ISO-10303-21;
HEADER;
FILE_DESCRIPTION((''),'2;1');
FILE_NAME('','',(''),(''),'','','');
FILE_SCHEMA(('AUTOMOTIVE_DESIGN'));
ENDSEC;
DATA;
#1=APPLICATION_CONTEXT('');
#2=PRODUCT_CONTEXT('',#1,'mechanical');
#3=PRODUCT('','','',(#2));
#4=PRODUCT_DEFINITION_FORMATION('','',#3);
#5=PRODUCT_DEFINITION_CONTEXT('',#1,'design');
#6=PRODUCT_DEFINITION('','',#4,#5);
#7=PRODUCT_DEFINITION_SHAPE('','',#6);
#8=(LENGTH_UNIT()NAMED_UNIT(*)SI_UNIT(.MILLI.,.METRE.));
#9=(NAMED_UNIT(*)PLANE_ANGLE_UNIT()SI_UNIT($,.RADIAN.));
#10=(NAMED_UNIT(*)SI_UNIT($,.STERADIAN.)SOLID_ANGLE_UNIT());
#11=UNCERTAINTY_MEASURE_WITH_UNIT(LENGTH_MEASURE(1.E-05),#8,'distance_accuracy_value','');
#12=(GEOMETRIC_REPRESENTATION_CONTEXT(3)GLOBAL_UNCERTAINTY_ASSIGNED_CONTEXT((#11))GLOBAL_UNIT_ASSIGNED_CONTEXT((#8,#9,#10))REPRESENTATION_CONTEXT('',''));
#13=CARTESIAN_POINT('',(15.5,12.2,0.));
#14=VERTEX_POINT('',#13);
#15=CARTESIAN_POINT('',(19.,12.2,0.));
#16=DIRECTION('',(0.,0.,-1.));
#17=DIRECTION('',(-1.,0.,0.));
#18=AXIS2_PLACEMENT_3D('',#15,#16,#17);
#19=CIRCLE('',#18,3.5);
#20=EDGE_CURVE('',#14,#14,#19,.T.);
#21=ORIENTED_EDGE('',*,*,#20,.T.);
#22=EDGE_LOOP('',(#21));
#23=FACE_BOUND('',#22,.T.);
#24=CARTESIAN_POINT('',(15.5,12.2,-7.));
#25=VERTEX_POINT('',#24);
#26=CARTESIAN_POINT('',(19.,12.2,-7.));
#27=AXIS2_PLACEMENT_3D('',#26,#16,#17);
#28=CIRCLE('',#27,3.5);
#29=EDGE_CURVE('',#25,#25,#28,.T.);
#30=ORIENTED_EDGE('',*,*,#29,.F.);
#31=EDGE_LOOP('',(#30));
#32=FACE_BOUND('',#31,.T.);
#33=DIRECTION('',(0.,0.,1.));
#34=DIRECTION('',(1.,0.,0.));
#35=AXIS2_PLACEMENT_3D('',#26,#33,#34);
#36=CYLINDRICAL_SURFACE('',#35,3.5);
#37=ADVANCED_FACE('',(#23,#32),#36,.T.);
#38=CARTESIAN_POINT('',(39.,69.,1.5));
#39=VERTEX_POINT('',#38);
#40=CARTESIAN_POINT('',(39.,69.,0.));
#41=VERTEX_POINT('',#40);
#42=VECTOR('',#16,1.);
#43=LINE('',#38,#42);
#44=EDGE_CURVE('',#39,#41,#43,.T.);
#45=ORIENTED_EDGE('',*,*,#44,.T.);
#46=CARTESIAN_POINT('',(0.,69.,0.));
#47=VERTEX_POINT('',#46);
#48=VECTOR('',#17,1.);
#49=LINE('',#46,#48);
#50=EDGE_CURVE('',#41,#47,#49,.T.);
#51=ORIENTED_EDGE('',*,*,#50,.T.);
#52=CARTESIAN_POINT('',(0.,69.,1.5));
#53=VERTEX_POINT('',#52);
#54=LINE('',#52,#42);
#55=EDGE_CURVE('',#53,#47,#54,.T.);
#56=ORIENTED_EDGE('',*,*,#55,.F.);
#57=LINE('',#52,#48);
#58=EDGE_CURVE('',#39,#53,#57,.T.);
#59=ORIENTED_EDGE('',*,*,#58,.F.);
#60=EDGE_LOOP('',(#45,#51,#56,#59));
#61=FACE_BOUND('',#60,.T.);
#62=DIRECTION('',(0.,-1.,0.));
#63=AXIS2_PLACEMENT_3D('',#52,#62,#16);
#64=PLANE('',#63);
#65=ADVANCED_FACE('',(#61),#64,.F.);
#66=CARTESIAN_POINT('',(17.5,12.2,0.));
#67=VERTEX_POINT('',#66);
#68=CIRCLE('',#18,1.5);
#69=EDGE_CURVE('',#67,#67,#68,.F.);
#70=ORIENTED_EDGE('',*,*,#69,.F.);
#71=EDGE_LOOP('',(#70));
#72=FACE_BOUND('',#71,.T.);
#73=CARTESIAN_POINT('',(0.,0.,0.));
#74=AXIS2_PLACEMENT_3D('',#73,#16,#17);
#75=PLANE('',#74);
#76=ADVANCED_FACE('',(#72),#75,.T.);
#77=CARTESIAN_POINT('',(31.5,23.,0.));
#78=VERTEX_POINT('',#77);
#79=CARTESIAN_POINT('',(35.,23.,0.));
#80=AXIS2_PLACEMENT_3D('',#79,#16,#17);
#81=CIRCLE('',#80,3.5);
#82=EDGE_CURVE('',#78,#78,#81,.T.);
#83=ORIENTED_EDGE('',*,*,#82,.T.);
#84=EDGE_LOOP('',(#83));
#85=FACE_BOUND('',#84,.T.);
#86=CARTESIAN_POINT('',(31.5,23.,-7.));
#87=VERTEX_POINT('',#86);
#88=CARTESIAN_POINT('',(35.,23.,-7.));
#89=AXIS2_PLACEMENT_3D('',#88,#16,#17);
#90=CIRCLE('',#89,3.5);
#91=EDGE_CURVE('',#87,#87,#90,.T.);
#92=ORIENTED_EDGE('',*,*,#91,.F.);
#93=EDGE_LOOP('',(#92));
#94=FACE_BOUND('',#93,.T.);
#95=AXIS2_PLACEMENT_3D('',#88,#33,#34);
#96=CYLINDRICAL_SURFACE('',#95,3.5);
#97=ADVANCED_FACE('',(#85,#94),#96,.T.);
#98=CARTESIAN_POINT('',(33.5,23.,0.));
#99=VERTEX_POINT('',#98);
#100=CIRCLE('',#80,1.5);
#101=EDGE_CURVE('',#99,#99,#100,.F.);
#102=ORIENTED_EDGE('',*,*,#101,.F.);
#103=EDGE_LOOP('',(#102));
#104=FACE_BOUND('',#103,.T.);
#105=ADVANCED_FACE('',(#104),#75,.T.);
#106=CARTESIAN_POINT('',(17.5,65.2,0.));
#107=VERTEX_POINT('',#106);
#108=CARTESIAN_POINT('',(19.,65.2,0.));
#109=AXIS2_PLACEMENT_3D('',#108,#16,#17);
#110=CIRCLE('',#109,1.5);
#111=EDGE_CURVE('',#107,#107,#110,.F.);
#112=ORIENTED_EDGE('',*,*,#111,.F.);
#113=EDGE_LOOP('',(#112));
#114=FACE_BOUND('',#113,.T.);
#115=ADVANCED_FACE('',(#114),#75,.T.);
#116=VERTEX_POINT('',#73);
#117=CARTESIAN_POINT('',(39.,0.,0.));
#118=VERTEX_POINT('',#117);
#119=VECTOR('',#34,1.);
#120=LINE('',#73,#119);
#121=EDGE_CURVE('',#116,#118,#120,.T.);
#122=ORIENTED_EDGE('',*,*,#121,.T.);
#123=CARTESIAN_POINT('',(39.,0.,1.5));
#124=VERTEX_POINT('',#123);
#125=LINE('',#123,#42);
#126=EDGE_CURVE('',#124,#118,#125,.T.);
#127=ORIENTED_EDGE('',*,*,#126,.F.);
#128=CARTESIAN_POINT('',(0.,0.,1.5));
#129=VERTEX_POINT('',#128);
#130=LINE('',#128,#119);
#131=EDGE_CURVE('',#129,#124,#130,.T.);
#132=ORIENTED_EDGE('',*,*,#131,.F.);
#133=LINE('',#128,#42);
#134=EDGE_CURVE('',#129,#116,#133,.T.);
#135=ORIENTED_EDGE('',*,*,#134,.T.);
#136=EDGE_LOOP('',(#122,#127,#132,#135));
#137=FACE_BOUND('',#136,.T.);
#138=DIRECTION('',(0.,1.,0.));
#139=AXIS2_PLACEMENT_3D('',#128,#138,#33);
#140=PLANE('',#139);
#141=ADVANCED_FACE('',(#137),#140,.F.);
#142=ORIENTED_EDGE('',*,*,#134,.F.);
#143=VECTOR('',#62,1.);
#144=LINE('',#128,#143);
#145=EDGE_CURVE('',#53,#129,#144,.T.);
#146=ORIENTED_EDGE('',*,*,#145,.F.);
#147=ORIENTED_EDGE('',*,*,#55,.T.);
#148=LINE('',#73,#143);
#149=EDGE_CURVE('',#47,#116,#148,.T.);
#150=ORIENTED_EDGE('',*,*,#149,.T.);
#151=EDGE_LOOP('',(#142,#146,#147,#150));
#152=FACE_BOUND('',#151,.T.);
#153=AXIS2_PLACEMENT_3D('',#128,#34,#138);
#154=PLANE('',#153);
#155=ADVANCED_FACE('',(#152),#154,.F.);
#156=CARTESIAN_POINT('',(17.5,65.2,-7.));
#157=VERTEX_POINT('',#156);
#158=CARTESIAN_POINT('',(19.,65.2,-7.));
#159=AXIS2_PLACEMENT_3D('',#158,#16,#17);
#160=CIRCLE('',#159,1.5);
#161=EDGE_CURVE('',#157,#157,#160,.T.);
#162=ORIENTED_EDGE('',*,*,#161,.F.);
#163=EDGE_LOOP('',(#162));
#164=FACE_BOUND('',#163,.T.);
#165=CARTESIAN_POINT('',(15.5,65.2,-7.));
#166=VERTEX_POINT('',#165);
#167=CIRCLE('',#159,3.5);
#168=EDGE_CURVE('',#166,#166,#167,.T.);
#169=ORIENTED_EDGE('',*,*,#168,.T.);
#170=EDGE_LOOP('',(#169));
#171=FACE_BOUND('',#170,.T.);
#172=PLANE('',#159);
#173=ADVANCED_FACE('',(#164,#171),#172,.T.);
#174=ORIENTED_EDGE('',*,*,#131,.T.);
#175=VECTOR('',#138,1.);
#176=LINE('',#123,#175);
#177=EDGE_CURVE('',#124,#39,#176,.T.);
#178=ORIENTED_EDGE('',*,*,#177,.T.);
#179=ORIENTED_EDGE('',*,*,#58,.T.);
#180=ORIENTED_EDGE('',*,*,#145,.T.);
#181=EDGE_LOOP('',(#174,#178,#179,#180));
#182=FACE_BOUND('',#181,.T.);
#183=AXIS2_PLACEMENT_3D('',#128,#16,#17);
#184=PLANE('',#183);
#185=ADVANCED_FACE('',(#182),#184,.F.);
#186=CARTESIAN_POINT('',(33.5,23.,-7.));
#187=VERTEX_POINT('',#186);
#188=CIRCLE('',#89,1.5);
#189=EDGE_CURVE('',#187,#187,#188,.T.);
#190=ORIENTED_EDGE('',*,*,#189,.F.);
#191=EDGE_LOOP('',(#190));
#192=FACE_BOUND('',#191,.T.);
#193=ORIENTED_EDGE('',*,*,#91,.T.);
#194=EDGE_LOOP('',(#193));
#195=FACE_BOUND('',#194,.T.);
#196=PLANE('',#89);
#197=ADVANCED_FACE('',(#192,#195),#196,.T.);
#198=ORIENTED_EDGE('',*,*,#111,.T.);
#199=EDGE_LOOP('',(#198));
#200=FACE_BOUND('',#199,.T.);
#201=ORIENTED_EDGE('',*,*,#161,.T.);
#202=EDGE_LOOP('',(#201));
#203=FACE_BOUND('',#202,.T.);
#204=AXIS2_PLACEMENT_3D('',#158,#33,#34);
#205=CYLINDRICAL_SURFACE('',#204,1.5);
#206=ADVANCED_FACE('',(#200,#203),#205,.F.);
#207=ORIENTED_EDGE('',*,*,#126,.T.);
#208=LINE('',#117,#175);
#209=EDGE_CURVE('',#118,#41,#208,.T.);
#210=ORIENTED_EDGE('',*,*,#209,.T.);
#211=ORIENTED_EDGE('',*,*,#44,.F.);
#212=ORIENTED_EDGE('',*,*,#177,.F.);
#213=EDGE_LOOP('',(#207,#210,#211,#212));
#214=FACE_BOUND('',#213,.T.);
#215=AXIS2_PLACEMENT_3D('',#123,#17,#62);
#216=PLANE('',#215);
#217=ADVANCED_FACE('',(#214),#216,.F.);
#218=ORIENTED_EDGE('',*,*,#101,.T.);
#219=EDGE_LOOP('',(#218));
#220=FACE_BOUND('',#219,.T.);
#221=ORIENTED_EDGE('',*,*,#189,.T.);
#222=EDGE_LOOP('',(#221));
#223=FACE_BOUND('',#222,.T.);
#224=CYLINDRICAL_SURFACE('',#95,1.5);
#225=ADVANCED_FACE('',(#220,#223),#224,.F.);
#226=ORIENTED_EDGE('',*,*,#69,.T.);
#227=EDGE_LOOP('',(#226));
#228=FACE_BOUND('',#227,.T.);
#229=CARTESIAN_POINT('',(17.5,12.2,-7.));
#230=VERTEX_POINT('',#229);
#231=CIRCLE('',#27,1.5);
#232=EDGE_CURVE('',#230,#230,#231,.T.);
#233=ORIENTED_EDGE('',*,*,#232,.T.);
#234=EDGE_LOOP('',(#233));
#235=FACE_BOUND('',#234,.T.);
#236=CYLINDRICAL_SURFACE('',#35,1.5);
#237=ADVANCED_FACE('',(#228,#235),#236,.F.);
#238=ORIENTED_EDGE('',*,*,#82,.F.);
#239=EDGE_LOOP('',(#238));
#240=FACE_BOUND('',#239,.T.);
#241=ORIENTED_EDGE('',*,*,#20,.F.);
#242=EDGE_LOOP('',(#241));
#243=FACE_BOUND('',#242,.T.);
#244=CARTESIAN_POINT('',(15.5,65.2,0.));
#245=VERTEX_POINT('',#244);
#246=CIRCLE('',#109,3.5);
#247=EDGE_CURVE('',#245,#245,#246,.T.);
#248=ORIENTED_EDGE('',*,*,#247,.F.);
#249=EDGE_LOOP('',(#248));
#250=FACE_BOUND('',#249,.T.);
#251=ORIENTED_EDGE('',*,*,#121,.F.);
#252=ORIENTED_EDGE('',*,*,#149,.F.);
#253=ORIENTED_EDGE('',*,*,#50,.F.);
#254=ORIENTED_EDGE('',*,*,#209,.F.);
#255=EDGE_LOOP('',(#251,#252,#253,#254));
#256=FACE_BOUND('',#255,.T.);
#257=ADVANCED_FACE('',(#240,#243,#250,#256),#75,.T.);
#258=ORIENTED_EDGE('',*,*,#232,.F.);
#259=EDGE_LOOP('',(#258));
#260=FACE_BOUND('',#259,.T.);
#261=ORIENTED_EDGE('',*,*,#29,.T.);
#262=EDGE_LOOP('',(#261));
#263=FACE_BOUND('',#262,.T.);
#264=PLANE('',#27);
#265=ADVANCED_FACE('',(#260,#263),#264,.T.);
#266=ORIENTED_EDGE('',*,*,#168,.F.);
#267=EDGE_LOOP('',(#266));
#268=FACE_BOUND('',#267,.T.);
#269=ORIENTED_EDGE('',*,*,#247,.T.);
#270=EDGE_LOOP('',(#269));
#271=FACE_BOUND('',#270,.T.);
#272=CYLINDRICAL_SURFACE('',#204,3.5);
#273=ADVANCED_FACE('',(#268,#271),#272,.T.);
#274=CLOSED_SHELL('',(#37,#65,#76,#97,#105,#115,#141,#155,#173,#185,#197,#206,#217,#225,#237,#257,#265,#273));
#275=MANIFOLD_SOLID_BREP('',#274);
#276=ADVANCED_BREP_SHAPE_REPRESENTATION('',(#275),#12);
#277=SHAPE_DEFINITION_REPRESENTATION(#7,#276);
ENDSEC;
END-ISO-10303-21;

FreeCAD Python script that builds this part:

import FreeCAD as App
import Part
import Sketcher

V = App.Vector


def add_polygon(sketch, points):
    """Adds a closed chain of lines whose ends are joined by coincident constraints."""
    first, n = sketch.GeometryCount, len(points)
    for a, b in zip(points, points[1:] + points[:1]):
        sketch.addGeometry(Part.LineSegment(App.Vector(*a, 0), App.Vector(*b, 0)), False)
    for i in range(n):
        sketch.addConstraint(Sketcher.Constraint("Coincident", first + i, 2, first + (i + 1) % n, 1))

doc = App.newDocument("Part")
body = doc.addObject("PartDesign::Body", "Body")

sketch1 = doc.addObject("Sketcher::SketchObject", "Sketch")
body.addObject(sketch1)
sketch1.AttachmentSupport = (doc.XY_Plane, [""])
sketch1.MapMode = "FlatFace"
add_polygon(sketch1, [(0, 69), (0, 0), (39, 0), (39, 69)])
sketch1.addConstraint([
    Sketcher.Constraint("Vertical", 0),
    Sketcher.Constraint("Horizontal", 1),
    Sketcher.Constraint("Vertical", 2),
    Sketcher.Constraint("Horizontal", 3),
    Sketcher.Constraint("Coincident", 0, 2, -1, 1),
    Sketcher.Constraint("DistanceX", 1, 1, 1, 2, 39.0),
    Sketcher.Constraint("DistanceY", 0, 2, 0, 1, 69.0),
])
pad1 = doc.addObject("PartDesign::Pad", "Pad")
body.addObject(pad1)
pad1.Profile = sketch1
pad1.Length = 1.5

sketch2 = doc.addObject("Sketcher::SketchObject", "Sketch001")
body.addObject(sketch2)
sketch2.AttachmentSupport = (doc.XY_Plane, [""])
sketch2.MapMode = "FlatFace"
sketch2.addGeometry([
    Part.Circle(V(19, 65.2, 0), V(0, 0, 1), 3.5),
    Part.Circle(V(19, 65.2, 0), V(0, 0, 1), 1.5),
    Part.Circle(V(35, 23, 0), V(0, 0, 1), 3.5),
    Part.Circle(V(35, 23, 0), V(0, 0, 1), 1.5),
    Part.Circle(V(19, 12.2, 0), V(0, 0, 1), 3.5),
    Part.Circle(V(19, 12.2, 0), V(0, 0, 1), 1.5),
], False)
sketch2.addConstraint([
    Sketcher.Constraint("Coincident", 1, 3, 0, 3),
    Sketcher.Constraint("Coincident", 3, 3, 2, 3),
    Sketcher.Constraint("Coincident", 5, 3, 4, 3),
    Sketcher.Constraint("Equal", 0, 2),
    Sketcher.Constraint("Equal", 1, 3),
    Sketcher.Constraint("Equal", 2, 4),
    Sketcher.Constraint("Equal", 3, 5),
    Sketcher.Constraint("Vertical", 1, 3, 4, 3),
    Sketcher.Constraint("Diameter", 0, 7.0),
    Sketcher.Constraint("Diameter", 1, 3.0),
    Sketcher.Constraint("DistanceX", -1, 1, 0, 3, 19.0),
    Sketcher.Constraint("DistanceX", -1, 1, 2, 3, 35.0),
    Sketcher.Constraint("DistanceY", -1, 1, 2, 3, 23.0),
    Sketcher.Constraint("DistanceY", 4, 3, 0, 3, 53.0),
    Sketcher.Constraint("DistanceY", -1, 1, 0, 3, 65.2),
])
pad2 = doc.addObject("PartDesign::Pad", "Pad001")
body.addObject(pad2)
pad2.Profile = sketch2
pad2.Length = 7
pad2.Reversed = True

doc.recompute()
